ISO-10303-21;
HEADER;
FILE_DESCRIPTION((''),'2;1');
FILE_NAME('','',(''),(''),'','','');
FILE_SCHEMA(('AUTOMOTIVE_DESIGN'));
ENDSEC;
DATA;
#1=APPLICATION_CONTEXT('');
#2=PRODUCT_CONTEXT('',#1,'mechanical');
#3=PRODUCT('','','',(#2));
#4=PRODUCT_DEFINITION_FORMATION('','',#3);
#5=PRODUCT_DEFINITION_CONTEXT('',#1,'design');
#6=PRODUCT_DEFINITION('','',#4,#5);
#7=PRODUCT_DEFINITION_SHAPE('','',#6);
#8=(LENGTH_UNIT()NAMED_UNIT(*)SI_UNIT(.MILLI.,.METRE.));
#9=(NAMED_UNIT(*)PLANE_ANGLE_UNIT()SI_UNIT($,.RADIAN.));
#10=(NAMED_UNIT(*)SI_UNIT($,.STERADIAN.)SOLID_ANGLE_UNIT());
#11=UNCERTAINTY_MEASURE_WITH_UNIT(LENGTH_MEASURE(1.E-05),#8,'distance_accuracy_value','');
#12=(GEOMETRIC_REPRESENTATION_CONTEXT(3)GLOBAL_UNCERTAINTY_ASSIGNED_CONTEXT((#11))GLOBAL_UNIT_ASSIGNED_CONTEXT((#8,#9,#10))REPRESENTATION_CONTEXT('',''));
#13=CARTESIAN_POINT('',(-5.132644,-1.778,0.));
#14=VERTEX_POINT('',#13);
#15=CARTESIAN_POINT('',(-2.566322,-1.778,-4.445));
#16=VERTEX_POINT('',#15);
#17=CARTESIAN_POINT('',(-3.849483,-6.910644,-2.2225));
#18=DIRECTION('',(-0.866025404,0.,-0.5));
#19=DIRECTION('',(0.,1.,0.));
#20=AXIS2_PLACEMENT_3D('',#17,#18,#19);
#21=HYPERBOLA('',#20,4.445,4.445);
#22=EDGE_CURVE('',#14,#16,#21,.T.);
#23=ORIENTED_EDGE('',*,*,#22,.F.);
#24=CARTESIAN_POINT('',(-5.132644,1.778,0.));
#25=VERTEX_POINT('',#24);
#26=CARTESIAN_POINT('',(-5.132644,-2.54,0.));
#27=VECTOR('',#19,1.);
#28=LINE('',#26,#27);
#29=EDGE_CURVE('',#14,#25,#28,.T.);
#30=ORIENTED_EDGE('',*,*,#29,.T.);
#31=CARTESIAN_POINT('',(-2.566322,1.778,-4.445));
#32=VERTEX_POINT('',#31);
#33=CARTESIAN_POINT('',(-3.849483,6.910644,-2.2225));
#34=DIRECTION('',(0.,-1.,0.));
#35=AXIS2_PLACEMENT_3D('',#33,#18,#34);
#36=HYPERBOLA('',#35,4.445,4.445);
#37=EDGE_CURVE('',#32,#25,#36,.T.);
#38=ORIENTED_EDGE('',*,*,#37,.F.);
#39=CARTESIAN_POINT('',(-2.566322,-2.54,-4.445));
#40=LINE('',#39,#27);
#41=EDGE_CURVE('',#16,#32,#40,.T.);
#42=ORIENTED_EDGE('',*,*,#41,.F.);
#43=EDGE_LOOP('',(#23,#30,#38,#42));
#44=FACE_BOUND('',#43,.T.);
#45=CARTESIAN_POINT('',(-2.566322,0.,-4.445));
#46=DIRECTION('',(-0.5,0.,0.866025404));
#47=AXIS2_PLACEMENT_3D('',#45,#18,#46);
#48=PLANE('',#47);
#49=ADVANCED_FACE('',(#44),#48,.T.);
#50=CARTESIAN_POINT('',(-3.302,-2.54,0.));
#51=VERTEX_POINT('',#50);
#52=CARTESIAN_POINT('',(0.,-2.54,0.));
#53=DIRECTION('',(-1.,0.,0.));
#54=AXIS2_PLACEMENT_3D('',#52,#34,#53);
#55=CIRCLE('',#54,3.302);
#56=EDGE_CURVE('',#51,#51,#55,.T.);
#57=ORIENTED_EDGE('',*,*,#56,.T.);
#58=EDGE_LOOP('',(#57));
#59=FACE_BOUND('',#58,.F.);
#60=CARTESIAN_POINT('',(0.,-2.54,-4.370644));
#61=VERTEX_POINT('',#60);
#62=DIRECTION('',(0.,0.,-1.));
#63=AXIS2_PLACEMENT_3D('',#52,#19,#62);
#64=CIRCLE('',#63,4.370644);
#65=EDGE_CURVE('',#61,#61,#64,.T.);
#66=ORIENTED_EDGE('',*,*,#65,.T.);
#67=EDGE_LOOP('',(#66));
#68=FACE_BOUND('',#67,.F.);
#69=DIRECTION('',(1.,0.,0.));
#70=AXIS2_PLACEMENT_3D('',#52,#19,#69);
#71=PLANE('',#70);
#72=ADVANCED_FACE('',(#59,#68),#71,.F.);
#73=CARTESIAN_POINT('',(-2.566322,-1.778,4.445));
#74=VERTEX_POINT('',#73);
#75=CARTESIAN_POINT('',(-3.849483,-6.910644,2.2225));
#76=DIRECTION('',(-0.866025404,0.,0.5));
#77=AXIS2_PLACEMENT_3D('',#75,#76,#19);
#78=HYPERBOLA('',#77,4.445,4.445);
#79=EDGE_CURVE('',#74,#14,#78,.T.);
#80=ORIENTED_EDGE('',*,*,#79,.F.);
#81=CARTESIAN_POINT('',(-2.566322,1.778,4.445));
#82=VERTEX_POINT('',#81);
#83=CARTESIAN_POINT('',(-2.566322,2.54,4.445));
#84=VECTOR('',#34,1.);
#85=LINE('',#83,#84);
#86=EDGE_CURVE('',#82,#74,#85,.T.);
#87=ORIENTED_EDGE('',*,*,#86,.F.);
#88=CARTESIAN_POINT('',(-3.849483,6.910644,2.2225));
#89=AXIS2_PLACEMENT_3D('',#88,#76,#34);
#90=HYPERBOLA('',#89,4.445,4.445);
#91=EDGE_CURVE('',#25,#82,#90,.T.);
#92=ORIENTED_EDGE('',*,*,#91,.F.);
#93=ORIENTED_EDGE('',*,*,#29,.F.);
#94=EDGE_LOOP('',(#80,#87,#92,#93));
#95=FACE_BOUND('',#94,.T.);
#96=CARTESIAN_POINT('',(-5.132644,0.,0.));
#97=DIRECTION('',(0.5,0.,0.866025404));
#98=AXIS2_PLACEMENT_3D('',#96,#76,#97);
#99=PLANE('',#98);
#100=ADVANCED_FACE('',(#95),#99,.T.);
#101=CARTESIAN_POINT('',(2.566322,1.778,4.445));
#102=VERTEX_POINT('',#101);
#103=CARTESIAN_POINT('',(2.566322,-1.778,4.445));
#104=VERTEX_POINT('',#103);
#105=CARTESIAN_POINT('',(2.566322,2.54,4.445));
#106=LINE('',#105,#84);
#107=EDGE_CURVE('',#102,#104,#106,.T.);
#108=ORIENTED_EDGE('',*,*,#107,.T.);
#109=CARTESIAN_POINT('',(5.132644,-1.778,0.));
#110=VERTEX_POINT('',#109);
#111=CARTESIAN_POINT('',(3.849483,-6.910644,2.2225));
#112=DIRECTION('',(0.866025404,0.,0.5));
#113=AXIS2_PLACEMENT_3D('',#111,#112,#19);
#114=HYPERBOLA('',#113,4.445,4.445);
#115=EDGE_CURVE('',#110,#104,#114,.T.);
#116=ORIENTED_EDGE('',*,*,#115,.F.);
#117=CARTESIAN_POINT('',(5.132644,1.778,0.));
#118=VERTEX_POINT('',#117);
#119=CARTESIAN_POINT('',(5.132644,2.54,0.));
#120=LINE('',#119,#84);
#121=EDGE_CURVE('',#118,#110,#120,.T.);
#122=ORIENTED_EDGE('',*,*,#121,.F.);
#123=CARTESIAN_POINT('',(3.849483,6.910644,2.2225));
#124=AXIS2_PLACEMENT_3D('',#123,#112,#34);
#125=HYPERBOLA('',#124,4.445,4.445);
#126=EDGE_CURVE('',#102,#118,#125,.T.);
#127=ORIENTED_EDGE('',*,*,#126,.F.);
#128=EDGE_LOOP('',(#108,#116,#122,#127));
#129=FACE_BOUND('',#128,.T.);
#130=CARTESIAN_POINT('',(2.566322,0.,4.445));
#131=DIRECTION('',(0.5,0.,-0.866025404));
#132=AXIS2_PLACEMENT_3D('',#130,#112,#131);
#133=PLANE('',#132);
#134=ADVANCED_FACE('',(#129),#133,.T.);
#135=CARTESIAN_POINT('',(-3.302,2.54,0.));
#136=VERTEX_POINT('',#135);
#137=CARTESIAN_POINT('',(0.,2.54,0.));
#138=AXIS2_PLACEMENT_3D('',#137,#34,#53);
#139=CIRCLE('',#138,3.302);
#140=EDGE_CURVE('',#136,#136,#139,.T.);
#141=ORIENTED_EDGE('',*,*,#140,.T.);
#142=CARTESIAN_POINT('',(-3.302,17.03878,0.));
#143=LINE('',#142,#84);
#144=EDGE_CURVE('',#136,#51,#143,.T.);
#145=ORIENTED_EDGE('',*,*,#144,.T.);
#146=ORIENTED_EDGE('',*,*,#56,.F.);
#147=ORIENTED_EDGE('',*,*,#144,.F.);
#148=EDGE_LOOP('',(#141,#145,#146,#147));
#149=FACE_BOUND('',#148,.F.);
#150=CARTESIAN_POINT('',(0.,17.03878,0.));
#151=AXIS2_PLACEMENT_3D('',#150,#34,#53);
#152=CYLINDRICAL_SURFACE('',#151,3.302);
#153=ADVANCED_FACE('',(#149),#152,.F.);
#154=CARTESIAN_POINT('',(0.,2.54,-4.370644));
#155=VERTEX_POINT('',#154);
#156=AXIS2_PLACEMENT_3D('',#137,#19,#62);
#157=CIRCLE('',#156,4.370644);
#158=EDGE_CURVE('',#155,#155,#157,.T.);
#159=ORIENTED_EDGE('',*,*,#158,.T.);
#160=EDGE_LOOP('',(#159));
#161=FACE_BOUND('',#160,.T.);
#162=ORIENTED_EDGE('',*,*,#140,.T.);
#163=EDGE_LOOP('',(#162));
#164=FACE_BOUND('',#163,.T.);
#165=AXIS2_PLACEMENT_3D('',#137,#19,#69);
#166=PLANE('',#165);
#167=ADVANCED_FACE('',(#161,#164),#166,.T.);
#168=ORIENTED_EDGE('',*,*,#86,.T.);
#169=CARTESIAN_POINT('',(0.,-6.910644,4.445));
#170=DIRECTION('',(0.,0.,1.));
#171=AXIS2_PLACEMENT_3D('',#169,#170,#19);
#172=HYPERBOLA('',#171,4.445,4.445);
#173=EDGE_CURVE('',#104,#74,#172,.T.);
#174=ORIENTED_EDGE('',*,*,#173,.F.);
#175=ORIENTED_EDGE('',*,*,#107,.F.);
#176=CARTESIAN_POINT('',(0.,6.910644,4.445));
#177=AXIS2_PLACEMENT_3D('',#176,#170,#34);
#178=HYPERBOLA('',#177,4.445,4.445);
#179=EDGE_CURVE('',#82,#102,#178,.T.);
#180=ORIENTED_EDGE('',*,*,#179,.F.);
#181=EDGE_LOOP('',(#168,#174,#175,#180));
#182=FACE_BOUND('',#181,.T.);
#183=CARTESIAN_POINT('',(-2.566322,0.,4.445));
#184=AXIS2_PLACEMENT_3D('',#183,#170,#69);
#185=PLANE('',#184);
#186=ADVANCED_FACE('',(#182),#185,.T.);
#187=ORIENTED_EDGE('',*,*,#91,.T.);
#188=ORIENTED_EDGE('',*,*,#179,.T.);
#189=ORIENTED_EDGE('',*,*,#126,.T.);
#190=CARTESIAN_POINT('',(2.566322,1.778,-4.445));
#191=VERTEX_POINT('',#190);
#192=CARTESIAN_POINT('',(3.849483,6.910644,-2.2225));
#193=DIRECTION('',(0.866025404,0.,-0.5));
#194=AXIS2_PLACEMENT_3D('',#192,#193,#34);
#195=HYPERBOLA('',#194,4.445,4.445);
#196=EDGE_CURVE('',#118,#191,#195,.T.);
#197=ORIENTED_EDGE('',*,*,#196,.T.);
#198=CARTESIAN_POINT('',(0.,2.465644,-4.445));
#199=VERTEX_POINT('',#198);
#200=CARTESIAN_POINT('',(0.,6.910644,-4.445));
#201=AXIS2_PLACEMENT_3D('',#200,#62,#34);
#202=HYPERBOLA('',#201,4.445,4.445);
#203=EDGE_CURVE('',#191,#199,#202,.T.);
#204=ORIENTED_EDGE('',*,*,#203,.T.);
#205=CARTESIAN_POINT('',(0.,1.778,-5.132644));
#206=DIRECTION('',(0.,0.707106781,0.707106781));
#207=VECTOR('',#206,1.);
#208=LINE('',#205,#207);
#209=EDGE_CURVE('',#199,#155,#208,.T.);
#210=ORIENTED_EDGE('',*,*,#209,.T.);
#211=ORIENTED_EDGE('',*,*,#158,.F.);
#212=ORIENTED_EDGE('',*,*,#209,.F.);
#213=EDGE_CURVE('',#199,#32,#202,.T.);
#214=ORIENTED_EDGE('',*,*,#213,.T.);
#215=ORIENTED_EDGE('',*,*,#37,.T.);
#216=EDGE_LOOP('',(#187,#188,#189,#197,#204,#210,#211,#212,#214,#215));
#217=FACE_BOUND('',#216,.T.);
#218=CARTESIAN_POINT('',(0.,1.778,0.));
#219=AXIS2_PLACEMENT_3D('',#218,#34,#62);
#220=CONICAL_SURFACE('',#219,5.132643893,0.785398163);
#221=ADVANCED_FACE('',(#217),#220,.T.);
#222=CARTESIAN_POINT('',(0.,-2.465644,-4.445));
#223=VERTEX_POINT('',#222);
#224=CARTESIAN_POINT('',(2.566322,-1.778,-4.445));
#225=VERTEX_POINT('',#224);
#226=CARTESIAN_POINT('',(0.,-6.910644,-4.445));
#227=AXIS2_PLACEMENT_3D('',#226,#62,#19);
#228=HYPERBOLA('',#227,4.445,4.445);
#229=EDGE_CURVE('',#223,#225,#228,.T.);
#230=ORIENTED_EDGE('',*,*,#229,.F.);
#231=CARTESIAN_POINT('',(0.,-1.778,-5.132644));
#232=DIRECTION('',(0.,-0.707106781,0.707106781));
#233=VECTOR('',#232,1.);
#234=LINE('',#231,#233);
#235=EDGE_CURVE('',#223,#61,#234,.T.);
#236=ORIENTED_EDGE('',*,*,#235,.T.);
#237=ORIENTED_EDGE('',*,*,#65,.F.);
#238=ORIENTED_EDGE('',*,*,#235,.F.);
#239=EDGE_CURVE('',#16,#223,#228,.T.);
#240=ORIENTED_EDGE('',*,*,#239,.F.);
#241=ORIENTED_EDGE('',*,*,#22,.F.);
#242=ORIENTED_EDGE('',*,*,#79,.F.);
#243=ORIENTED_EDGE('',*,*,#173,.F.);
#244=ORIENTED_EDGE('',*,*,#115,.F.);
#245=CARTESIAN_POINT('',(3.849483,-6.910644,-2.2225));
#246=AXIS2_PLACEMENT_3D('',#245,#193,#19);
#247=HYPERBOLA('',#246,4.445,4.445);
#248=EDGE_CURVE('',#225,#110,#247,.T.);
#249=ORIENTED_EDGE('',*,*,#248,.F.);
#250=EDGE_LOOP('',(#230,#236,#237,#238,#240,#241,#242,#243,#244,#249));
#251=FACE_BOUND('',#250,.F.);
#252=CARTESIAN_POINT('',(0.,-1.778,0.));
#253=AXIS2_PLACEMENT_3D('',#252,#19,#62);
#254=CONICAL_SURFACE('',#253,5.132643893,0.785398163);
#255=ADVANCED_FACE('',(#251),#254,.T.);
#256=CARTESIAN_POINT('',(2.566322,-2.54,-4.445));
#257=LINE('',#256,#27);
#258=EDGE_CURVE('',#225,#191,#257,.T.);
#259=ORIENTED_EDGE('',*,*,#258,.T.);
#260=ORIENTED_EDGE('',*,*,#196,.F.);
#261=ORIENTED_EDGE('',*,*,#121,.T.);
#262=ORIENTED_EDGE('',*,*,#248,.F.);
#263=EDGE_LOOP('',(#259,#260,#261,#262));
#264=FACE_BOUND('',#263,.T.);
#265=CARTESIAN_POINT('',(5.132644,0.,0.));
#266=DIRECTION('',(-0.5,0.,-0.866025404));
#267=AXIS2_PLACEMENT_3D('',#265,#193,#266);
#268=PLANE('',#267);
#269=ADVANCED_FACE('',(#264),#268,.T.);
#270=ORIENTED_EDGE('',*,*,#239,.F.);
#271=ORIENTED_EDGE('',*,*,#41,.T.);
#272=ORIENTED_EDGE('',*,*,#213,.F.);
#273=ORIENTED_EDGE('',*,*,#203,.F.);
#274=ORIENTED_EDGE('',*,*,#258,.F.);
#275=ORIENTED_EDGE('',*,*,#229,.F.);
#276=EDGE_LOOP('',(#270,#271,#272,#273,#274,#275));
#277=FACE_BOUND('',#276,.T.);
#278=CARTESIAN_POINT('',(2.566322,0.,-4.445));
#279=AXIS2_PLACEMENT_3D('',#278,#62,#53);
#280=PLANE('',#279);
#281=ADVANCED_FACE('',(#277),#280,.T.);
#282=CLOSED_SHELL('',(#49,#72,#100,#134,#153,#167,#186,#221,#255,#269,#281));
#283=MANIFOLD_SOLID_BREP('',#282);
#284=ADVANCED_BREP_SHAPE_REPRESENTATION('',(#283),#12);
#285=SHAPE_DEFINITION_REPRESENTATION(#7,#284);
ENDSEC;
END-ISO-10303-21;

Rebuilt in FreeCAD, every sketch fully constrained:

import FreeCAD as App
import Part
import Sketcher
from FreeCAD import Vector
Q = App.Units.Quantity

doc = App.newDocument("Part")
body = doc.addObject("PartDesign::Body", "Body")

# Sketch on XZ plane
sketch1 = body.newObject("Sketcher::SketchObject", "Sketch")
sketch1.AttachmentSupport = (doc.getObject("XZ_Plane"), [""])
sketch1.MapMode = "FlatFace"
sketch1.addGeometry(Part.LineSegment(Vector(5.132644, 0, 0), Vector(2.566322, -4.445, 0)), False)
sketch1.addGeometry(Part.LineSegment(Vector(2.566322, -4.445, 0), Vector(-2.566322, -4.445, 0)), False)
sketch1.addGeometry(Part.LineSegment(Vector(-2.566322, -4.445, 0), Vector(-5.132644, 0, 0)), False)
sketch1.addGeometry(Part.LineSegment(Vector(-5.132644, 0, 0), Vector(-2.566322, 4.445, 0)), False)
sketch1.addGeometry(Part.LineSegment(Vector(-2.566322, 4.445, 0), Vector(2.566322, 4.445, 0)), False)
sketch1.addGeometry(Part.LineSegment(Vector(2.566322, 4.445, 0), Vector(5.132644, 0, 0)), False)
sketch1.addConstraint(Sketcher.Constraint("Coincident", 0, 2, 1, 1))
sketch1.addConstraint(Sketcher.Constraint("Coincident", 1, 2, 2, 1))
sketch1.addConstraint(Sketcher.Constraint("Coincident", 2, 2, 3, 1))
sketch1.addConstraint(Sketcher.Constraint("Coincident", 3, 2, 4, 1))
sketch1.addConstraint(Sketcher.Constraint("Coincident", 4, 2, 5, 1))
sketch1.addConstraint(Sketcher.Constraint("Coincident", 5, 2, 0, 1))
sketch1.addConstraint(Sketcher.Constraint("Horizontal", 1))
sketch1.addConstraint(Sketcher.Constraint("Horizontal", 4))
sketch1.addConstraint(Sketcher.Constraint("Symmetric", 0, 2, 3, 2, -1, 1))
sketch1.addConstraint(Sketcher.Constraint("Symmetric", 2, 2, 5, 2, -1, 1))
sketch1.addConstraint(Sketcher.Constraint("PointOnObject", 2, 2, -1))
sketch1.addConstraint(Sketcher.Constraint("Parallel", 2, 5))
sketch1.addConstraint(Sketcher.Constraint("Vertical", 1, 2, 3, 2))
sketch1.addConstraint(Sketcher.Constraint("Angle", 0, Q("-120 deg")))
sketch1.addConstraint(Sketcher.Constraint("DistanceY", 1, 2, 3, 2, Q("0.35 in")))
sketch1.addConstraint(Sketcher.Constraint("DistanceX", 1, 2, 1, 1, Q("5.132644 mm")))
pad1 = body.newObject("PartDesign::Pad", "Pad")
pad1.Profile = sketch1
pad1.Length = Q("0.2 in")
pad1.Midplane = True

# Sketch on XY plane
sketch2 = body.newObject("Sketcher::SketchObject", "Sketch001")
sketch2.AttachmentSupport = (doc.getObject("XY_Plane"), [""])
sketch2.MapMode = "FlatFace"
sketch2.addGeometry(Part.LineSegment(Vector(5.132644, 2.54, 0), Vector(4.370644, 2.54, 0)), False)
sketch2.addGeometry(Part.LineSegment(Vector(4.370644, 2.54, 0), Vector(5.132644, 1.778, 0)), False)
sketch2.addGeometry(Part.LineSegment(Vector(5.132644, 1.778, 0), Vector(5.132644, 2.54, 0)), False)
sketch2.addConstraint(Sketcher.Constraint("Coincident", 0, 2, 1, 1))
sketch2.addConstraint(Sketcher.Constraint("Coincident", 1, 2, 2, 1))
sketch2.addConstraint(Sketcher.Constraint("Coincident", 2, 2, 0, 1))
sketch2.addConstraint(Sketcher.Constraint("Horizontal", 0))
sketch2.addConstraint(Sketcher.Constraint("Vertical", 2))
sketch2.addConstraint(Sketcher.Constraint("Equal", 0, 2))
sketch2.addConstraint(Sketcher.Constraint("DistanceX", 0, 2, 0, 1, Q("0.03 in")))
sketch2.addConstraint(Sketcher.Constraint("DistanceY", -1, 1, 0, 2, Q("0.1 in")))
sketch2.addConstraint(Sketcher.Constraint("DistanceX", -1, 1, 0, 2, Q("4.370644 mm")))
groove = body.newObject("PartDesign::Groove", "Groove")
groove.Profile = sketch2
groove.ReferenceAxis = (sketch2, ["V_Axis"])
groove.Angle = 360

# Sketch on XZ plane
sketch3 = body.newObject("Sketcher::SketchObject", "Sketch002")
sketch3.AttachmentSupport = (doc.getObject("XZ_Plane"), [""])
sketch3.MapMode = "FlatFace"
sketch3.AttachmentOffset = App.Placement(Vector(0, 0, -0.1 * 25.4), App.Rotation())
sketch3.addGeometry(Part.Circle(Vector(0, 0, 0), Vector(0, 0, 1), 3.302), False)
sketch3.addConstraint(Sketcher.Constraint("Coincident", 0, 3, -1, 1))
sketch3.addConstraint(Sketcher.Constraint("Diameter", 0, Q("0.26 in")))
doc.recompute()
hole = body.newObject("PartDesign::Hole", "Hole")
hole.Profile = sketch3
hole.ThreadType = "None"
hole.Diameter = Q("0.26 in")
hole.DepthType = "ThroughAll"
hole.Reversed = True
doc.recompute()

mirrored = body.newObject("PartDesign::Mirrored", "Mirrored")
mirrored.Originals = [groove]
mirrored.MirrorPlane = (doc.getObject("XZ_Plane"), [""])
body.Tip = mirrored

doc.recompute()
